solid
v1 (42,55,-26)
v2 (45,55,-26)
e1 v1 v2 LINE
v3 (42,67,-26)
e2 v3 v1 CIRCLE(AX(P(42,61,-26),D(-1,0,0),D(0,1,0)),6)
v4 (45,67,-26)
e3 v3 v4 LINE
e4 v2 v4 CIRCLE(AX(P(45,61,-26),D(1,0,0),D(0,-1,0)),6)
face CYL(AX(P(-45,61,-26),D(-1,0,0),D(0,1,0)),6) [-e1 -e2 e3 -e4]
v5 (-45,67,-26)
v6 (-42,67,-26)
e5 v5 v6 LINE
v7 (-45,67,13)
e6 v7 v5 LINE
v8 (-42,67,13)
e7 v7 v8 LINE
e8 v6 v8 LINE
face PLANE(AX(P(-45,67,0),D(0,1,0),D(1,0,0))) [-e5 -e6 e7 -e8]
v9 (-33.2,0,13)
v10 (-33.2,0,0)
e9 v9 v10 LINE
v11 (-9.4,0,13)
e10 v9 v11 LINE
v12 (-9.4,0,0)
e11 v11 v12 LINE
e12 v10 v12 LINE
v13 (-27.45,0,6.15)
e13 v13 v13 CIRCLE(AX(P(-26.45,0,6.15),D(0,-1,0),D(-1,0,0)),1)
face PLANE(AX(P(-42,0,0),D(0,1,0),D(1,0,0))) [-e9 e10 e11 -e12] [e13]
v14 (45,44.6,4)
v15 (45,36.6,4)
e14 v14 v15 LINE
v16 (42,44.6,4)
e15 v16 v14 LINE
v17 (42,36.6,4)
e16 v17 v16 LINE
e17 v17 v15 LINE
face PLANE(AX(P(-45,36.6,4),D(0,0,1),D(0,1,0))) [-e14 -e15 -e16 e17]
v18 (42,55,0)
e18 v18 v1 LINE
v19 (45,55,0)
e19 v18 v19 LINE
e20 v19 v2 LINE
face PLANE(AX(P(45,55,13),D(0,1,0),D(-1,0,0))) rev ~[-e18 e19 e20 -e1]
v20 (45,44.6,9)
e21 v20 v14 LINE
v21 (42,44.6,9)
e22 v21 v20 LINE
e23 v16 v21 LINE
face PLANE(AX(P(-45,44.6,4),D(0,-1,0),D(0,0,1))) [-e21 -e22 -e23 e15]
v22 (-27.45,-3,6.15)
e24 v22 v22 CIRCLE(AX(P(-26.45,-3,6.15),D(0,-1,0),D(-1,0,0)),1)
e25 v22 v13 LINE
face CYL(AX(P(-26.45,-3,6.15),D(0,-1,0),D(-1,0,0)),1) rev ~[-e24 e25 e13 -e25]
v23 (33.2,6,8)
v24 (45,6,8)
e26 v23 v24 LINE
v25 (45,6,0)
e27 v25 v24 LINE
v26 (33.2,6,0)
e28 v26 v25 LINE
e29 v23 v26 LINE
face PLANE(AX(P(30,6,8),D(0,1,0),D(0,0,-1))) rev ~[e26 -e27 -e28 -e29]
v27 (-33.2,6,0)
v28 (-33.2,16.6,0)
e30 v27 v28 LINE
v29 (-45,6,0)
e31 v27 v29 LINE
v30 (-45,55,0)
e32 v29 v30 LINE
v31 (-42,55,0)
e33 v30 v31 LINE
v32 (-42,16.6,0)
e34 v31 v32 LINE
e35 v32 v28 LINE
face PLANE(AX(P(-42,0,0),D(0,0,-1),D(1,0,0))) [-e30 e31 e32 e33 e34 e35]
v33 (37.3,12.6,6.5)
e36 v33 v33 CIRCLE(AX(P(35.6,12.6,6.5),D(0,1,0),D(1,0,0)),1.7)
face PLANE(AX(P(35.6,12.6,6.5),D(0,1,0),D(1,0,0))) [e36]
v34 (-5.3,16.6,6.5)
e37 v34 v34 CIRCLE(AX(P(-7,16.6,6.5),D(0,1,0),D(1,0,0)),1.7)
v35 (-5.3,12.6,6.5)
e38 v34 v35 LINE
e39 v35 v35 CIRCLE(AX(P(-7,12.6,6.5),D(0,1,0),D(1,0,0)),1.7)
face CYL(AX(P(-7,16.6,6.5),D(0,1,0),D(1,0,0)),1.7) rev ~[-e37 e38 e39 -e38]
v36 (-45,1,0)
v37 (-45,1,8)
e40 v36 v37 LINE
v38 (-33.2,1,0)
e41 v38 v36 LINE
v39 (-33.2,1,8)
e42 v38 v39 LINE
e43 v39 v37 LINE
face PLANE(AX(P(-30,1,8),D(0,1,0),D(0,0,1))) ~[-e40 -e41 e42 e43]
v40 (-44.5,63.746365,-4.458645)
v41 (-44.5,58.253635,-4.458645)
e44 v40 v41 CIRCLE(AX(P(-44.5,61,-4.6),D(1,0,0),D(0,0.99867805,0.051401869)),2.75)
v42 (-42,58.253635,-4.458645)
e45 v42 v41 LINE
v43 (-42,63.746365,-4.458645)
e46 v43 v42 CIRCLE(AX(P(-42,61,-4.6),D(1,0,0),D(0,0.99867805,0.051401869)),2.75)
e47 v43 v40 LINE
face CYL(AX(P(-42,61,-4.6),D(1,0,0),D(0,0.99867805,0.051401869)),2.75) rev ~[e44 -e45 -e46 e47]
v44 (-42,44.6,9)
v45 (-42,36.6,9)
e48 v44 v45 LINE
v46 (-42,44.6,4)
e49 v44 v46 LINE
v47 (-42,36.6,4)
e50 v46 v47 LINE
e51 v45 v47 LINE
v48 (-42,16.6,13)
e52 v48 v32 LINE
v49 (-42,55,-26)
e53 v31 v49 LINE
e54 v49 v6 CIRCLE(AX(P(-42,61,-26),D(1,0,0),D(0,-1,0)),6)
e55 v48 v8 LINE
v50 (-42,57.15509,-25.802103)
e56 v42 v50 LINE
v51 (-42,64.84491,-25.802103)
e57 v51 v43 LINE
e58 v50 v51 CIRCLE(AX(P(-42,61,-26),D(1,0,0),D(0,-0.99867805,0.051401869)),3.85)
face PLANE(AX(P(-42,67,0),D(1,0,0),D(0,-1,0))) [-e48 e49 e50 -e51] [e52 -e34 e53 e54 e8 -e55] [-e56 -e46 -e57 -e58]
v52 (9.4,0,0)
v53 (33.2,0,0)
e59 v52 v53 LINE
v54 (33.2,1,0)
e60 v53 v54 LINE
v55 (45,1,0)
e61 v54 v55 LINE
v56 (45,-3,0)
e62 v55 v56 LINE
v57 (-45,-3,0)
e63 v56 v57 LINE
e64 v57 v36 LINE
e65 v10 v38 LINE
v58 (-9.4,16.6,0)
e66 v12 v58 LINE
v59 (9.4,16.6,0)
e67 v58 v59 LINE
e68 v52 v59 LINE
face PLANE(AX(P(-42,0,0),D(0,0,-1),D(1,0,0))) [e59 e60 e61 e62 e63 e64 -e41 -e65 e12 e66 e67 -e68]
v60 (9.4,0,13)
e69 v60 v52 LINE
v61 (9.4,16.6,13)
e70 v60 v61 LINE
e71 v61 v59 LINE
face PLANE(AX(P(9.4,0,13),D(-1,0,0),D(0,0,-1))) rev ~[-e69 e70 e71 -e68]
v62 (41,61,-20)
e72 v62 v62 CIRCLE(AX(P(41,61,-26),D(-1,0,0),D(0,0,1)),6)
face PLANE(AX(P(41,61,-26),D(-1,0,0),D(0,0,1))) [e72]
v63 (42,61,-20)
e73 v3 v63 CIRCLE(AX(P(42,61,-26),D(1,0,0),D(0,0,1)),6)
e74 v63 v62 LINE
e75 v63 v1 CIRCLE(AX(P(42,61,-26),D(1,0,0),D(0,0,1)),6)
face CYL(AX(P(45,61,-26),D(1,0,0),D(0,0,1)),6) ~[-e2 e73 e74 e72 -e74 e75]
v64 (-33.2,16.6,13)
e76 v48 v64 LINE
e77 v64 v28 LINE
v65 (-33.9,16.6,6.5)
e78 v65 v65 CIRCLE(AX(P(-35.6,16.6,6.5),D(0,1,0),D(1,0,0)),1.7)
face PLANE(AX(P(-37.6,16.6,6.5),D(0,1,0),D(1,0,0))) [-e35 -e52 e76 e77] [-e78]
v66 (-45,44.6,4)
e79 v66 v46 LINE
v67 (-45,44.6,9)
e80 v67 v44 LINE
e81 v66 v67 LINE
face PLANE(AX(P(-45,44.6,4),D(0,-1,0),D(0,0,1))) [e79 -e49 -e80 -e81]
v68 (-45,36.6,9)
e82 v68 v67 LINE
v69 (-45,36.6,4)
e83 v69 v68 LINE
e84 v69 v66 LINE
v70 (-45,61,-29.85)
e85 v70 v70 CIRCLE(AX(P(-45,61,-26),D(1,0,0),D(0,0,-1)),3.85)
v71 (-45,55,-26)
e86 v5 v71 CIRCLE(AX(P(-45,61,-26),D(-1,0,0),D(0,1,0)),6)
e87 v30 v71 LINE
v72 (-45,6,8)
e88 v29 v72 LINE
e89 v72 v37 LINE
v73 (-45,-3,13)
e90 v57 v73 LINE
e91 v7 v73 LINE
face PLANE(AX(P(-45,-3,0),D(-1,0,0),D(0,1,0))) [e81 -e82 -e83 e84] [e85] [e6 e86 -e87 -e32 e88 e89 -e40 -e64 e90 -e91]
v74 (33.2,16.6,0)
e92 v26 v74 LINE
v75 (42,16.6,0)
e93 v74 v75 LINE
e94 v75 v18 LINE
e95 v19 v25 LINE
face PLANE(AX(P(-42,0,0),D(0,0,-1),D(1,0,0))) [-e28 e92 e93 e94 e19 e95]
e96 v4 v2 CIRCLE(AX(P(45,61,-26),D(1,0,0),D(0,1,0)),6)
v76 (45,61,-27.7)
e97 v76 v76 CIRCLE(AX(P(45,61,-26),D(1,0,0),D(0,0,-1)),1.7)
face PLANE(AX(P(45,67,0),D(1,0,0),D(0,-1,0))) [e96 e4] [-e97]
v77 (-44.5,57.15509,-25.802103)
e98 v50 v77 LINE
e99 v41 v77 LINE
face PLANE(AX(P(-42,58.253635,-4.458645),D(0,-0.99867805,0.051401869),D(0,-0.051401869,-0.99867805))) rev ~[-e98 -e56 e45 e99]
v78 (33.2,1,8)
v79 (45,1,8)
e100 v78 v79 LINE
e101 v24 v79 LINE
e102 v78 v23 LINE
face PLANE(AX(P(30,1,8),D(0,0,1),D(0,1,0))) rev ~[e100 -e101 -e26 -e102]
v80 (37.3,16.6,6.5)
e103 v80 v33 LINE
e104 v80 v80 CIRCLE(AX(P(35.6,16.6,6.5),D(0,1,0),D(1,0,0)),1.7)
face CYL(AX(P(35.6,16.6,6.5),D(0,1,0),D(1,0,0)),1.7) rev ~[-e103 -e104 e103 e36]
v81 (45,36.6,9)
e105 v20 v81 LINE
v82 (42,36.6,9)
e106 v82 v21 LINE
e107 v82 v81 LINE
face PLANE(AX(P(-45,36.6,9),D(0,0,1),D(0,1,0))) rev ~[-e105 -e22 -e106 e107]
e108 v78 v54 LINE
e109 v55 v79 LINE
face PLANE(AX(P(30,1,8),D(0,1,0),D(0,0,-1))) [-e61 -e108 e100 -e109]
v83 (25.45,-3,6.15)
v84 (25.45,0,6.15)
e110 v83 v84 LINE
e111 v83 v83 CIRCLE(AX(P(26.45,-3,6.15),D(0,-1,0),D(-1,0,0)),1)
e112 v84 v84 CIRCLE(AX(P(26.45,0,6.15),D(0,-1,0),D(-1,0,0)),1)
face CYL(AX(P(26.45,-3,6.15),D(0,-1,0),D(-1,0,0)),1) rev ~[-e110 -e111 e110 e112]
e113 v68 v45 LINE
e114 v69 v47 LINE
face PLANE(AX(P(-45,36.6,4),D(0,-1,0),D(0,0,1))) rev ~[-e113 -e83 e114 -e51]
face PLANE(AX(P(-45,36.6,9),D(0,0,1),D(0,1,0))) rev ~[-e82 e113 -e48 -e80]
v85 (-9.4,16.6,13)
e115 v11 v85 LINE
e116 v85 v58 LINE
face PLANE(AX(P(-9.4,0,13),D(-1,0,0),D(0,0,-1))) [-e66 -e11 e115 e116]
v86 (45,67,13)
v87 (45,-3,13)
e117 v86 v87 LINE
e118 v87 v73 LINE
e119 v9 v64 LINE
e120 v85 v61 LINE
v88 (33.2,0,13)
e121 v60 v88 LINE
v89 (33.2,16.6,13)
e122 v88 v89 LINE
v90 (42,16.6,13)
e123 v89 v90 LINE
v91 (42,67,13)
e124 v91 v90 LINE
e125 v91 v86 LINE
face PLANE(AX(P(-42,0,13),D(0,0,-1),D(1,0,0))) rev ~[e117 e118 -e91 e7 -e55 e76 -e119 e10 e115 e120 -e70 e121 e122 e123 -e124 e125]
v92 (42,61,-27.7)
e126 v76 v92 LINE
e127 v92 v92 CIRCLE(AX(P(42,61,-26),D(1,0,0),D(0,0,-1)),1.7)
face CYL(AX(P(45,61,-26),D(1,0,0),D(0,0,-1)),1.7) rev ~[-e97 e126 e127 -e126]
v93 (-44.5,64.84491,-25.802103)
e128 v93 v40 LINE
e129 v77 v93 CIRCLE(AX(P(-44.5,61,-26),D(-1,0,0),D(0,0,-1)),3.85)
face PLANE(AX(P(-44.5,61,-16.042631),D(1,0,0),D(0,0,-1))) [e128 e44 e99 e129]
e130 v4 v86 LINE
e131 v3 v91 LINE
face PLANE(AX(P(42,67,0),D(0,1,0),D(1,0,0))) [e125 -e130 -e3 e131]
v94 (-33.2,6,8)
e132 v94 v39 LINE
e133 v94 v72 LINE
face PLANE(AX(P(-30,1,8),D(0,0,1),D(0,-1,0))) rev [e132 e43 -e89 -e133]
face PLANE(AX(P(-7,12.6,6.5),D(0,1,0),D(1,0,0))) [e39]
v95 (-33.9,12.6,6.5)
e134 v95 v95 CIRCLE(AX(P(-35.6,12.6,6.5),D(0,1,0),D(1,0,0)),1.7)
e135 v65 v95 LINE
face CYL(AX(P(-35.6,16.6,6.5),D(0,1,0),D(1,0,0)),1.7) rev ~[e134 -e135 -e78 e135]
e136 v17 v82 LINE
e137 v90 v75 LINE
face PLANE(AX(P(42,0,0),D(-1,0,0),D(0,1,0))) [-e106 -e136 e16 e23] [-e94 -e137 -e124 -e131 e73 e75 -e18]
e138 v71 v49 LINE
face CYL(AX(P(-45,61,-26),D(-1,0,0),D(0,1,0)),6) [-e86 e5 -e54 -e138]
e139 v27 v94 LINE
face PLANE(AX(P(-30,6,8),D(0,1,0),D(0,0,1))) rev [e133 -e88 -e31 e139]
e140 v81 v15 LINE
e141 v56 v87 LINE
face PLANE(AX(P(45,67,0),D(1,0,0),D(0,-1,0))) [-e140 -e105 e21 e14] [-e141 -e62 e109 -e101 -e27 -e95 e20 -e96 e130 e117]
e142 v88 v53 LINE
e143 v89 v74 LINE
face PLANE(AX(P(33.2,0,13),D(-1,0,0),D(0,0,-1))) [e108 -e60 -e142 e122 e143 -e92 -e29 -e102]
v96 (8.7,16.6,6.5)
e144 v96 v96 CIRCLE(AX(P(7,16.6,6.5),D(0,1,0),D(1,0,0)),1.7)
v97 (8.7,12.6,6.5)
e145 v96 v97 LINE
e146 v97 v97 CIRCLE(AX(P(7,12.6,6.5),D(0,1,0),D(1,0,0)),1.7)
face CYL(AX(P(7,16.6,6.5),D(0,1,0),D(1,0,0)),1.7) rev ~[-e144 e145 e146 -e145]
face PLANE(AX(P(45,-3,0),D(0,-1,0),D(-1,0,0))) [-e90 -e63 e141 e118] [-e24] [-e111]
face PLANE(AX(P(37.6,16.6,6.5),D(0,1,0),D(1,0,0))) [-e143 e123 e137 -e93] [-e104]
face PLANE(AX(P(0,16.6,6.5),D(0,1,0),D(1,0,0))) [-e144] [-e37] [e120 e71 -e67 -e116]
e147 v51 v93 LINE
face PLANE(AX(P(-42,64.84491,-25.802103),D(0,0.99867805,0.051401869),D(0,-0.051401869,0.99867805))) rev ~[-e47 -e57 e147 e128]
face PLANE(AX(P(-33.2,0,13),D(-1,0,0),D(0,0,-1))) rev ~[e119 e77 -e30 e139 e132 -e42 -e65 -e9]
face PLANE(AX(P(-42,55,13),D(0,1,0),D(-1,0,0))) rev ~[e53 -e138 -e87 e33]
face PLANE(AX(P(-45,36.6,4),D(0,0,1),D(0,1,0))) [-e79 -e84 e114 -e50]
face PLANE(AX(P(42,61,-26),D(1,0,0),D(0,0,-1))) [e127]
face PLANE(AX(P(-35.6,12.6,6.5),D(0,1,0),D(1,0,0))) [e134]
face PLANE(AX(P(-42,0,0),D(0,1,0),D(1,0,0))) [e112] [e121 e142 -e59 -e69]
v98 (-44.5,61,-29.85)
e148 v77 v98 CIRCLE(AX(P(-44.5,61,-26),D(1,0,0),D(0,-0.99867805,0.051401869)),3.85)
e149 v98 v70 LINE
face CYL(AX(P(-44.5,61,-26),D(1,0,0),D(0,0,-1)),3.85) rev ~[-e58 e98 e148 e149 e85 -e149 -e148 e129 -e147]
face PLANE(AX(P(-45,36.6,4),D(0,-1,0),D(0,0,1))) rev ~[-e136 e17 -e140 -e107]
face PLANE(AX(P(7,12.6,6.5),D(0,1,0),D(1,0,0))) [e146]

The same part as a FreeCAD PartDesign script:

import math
import FreeCAD as App
import Part
import Sketcher
Q = App.Units.Quantity

doc = App.newDocument("Part")
body = doc.addObject("PartDesign::Body", "Body")

# Sketch on XY plane
sketch1 = doc.addObject("Sketcher::SketchObject", "Sketch")
body.addObject(sketch1)
sketch1.AttachmentSupport = (doc.XY_Plane, [""])
sketch1.MapMode = "FlatFace"
sketch1.addGeometry(Part.LineSegment(App.Vector(-42, 67, 0), App.Vector(-45, 67, 0)), False)
sketch1.addGeometry(Part.LineSegment(App.Vector(-45, 67, 0), App.Vector(-45, -3, 0)), False)
sketch1.addGeometry(Part.LineSegment(App.Vector(-45, -3, 0), App.Vector(45, -3, 0)), False)
sketch1.addGeometry(Part.LineSegment(App.Vector(45, -3, 0), App.Vector(45, 67, 0)), False)
sketch1.addGeometry(Part.LineSegment(App.Vector(45, 67, 0), App.Vector(42, 67, 0)), False)
sketch1.addGeometry(Part.LineSegment(App.Vector(42, 67, 0), App.Vector(42, 0, 0)), False)
sketch1.addGeometry(Part.LineSegment(App.Vector(42, 0, 0), App.Vector(-42, 0, 0)), False)
sketch1.addGeometry(Part.LineSegment(App.Vector(-42, 0, 0), App.Vector(-42, 67, 0)), False)
sketch1.addConstraint(Sketcher.Constraint("Coincident", 0, 2, 1, 1))
sketch1.addConstraint(Sketcher.Constraint("Coincident", 1, 2, 2, 1))
sketch1.addConstraint(Sketcher.Constraint("Coincident", 2, 2, 3, 1))
sketch1.addConstraint(Sketcher.Constraint("Coincident", 3, 2, 4, 1))
sketch1.addConstraint(Sketcher.Constraint("Coincident", 4, 2, 5, 1))
sketch1.addConstraint(Sketcher.Constraint("Coincident", 5, 2, 6, 1))
sketch1.addConstraint(Sketcher.Constraint("Coincident", 6, 2, 7, 1))
sketch1.addConstraint(Sketcher.Constraint("Coincident", 7, 2, 0, 1))
sketch1.addConstraint(Sketcher.Constraint("Horizontal", 0))
sketch1.addConstraint(Sketcher.Constraint("Vertical", 1))
sketch1.addConstraint(Sketcher.Constraint("Horizontal", 2))
sketch1.addConstraint(Sketcher.Constraint("Vertical", 3))
sketch1.addConstraint(Sketcher.Constraint("Horizontal", 4))
sketch1.addConstraint(Sketcher.Constraint("Vertical", 5))
sketch1.addConstraint(Sketcher.Constraint("Horizontal", 6))
sketch1.addConstraint(Sketcher.Constraint("Vertical", 7))
sketch1.addConstraint(Sketcher.Constraint("Symmetric", 5, 2, 6, 2, -1, 1))
sketch1.addConstraint(Sketcher.Constraint("Symmetric", 0, 2, 3, 2, -2))
sketch1.addConstraint(Sketcher.Constraint("DistanceX", 0, 2, 0, 1, Q("3 mm")))
sketch1.addConstraint(Sketcher.Constraint("DistanceX", 2, 1, 2, 2, Q("90 mm")))
sketch1.addConstraint(Sketcher.Constraint("DistanceY", 1, 2, 1, 1, Q("70 mm")))
sketch1.addConstraint(Sketcher.Constraint("DistanceY", 5, 2, 5, 1, Q("67 mm")))
pad1 = doc.addObject("PartDesign::Pad", "Pad")
body.addObject(pad1)
pad1.Profile = sketch1
pad1.Length = 13

# Sketch on XY plane
sketch2 = doc.addObject("Sketcher::SketchObject", "Sketch001")
body.addObject(sketch2)
sketch2.AttachmentSupport = (doc.XY_Plane, [""])
sketch2.MapMode = "FlatFace"
sketch2.AttachmentOffset = App.Placement(App.Vector(0, 0, 13), App.Rotation())
sketch2.addGeometry(Part.LineSegment(App.Vector(45, 67, 0), App.Vector(45, 55, 0)), False)
sketch2.addGeometry(Part.LineSegment(App.Vector(45, 55, 0), App.Vector(42, 55, 0)), False)
sketch2.addGeometry(Part.LineSegment(App.Vector(42, 55, 0), App.Vector(42, 67, 0)), False)
sketch2.addGeometry(Part.LineSegment(App.Vector(42, 67, 0), App.Vector(45, 67, 0)), False)
sketch2.addGeometry(Part.LineSegment(App.Vector(-42, 67, 0), App.Vector(-42, 55, 0)), False)
sketch2.addGeometry(Part.LineSegment(App.Vector(-42, 55, 0), App.Vector(-45, 55, 0)), False)
sketch2.addGeometry(Part.LineSegment(App.Vector(-45, 55, 0), App.Vector(-45, 67, 0)), False)
sketch2.addGeometry(Part.LineSegment(App.Vector(-45, 67, 0), App.Vector(-42, 67, 0)), False)
sketch2.addConstraint(Sketcher.Constraint("Coincident", 0, 2, 1, 1))
sketch2.addConstraint(Sketcher.Constraint("Coincident", 1, 2, 2, 1))
sketch2.addConstraint(Sketcher.Constraint("Coincident", 2, 2, 3, 1))
sketch2.addConstraint(Sketcher.Constraint("Coincident", 3, 2, 0, 1))
sketch2.addConstraint(Sketcher.Constraint("Coincident", 4, 2, 5, 1))
sketch2.addConstraint(Sketcher.Constraint("Coincident", 5, 2, 6, 1))
sketch2.addConstraint(Sketcher.Constraint("Coincident", 6, 2, 7, 1))
sketch2.addConstraint(Sketcher.Constraint("Coincident", 7, 2, 4, 1))
sketch2.addConstraint(Sketcher.Constraint("Vertical", 0))
sketch2.addConstraint(Sketcher.Constraint("Horizontal", 1))
sketch2.addConstraint(Sketcher.Constraint("Vertical", 2))
sketch2.addConstraint(Sketcher.Constraint("Horizontal", 3))
sketch2.addConstraint(Sketcher.Constraint("Vertical", 4))
sketch2.addConstraint(Sketcher.Constraint("Horizontal", 5))
sketch2.addConstraint(Sketcher.Constraint("Vertical", 6))
sketch2.addConstraint(Sketcher.Constraint("Horizontal", 7))
sketch2.addConstraint(Sketcher.Constraint("Symmetric", 1, 2, 4, 2, -2))
sketch2.addConstraint(Sketcher.Constraint("Symmetric", 3, 2, 6, 2, -2))
sketch2.addConstraint(Sketcher.Constraint("DistanceX", 1, 2, 1, 1, Q("3 mm")))
sketch2.addConstraint(Sketcher.Constraint("DistanceY", 0, 2, 0, 1, Q("12 mm")))
sketch2.addConstraint(Sketcher.Constraint("DistanceX", -1, 1, 0, 2, Q("45 mm")))
sketch2.addConstraint(Sketcher.Constraint("DistanceY", -1, 1, 0, 2, Q("55 mm")))
pad2 = doc.addObject("PartDesign::Pad", "Pad001")
body.addObject(pad2)
pad2.Profile = sketch2
pad2.Length = 45
pad2.Reversed = True

# Sketch on XZ plane
sketch3 = doc.addObject("Sketcher::SketchObject", "Sketch002")
body.addObject(sketch3)
sketch3.AttachmentSupport = (doc.XZ_Plane, [""])
sketch3.MapMode = "FlatFace"
sketch3.addGeometry(Part.LineSegment(App.Vector(-42, 0, 0), App.Vector(-42, 13, 0)), False)
sketch3.addGeometry(Part.LineSegment(App.Vector(-42, 13, 0), App.Vector(-33, 13, 0)), False)
sketch3.addGeometry(Part.LineSegment(App.Vector(-33, 13, 0), App.Vector(-33, 0, 0)), False)
sketch3.addGeometry(Part.LineSegment(App.Vector(-33, 0, 0), App.Vector(-42, 0, 0)), False)
sketch3.addGeometry(Part.LineSegment(App.Vector(33, 0, 0), App.Vector(33, 13, 0)), False)
sketch3.addGeometry(Part.LineSegment(App.Vector(33, 13, 0), App.Vector(42, 13, 0)), False)
sketch3.addGeometry(Part.LineSegment(App.Vector(42, 13, 0), App.Vector(42, 0, 0)), False)
sketch3.addGeometry(Part.LineSegment(App.Vector(42, 0, 0), App.Vector(33, 0, 0)), False)
sketch3.addGeometry(Part.LineSegment(App.Vector(-9, 0, 0), App.Vector(-9, 13, 0)), False)
sketch3.addGeometry(Part.LineSegment(App.Vector(-9, 13, 0), App.Vector(9, 13, 0)), False)
sketch3.addGeometry(Part.LineSegment(App.Vector(9, 13, 0), App.Vector(9, 0, 0)), False)
sketch3.addGeometry(Part.LineSegment(App.Vector(9, 0, 0), App.Vector(-9, 0, 0)), False)
sketch3.addConstraint(Sketcher.Constraint("Coincident", 0, 2, 1, 1))
sketch3.addConstraint(Sketcher.Constraint("Coincident", 1, 2, 2, 1))
sketch3.addConstraint(Sketcher.Constraint("Coincident", 2, 2, 3, 1))
sketch3.addConstraint(Sketcher.Constraint("Coincident", 3, 2, 0, 1))
sketch3.addConstraint(Sketcher.Constraint("Coincident", 4, 2, 5, 1))
sketch3.addConstraint(Sketcher.Constraint("Coincident", 5, 2, 6, 1))
sketch3.addConstraint(Sketcher.Constraint("Coincident", 6, 2, 7, 1))
sketch3.addConstraint(Sketcher.Constraint("Coincident", 7, 2, 4, 1))
sketch3.addConstraint(Sketcher.Constraint("Coincident", 8, 2, 9, 1))
sketch3.addConstraint(Sketcher.Constraint("Coincident", 9, 2, 10, 1))
sketch3.addConstraint(Sketcher.Constraint("Coincident", 10, 2, 11, 1))
sketch3.addConstraint(Sketcher.Constraint("Coincident", 11, 2, 8, 1))
sketch3.addConstraint(Sketcher.Constraint("Vertical", 0))
sketch3.addConstraint(Sketcher.Constraint("Horizontal", 1))
sketch3.addConstraint(Sketcher.Constraint("Vertical", 2))
sketch3.addConstraint(Sketcher.Constraint("Horizontal", 3))
sketch3.addConstraint(Sketcher.Constraint("Vertical", 4))
sketch3.addConstraint(Sketcher.Constraint("Horizontal", 5))
sketch3.addConstraint(Sketcher.Constraint("Vertical", 6))
sketch3.addConstraint(Sketcher.Constraint("Horizontal", 7))
sketch3.addConstraint(Sketcher.Constraint("Vertical", 8))
sketch3.addConstraint(Sketcher.Constraint("Horizontal", 9))
sketch3.addConstraint(Sketcher.Constraint("Vertical", 10))
sketch3.addConstraint(Sketcher.Constraint("Horizontal", 11))
sketch3.addConstraint(Sketcher.Constraint("Symmetric", 3, 2, 6, 2, -1, 1))
sketch3.addConstraint(Sketcher.Constraint("Symmetric", 10, 2, 11, 2, -1, 1))
sketch3.addConstraint(Sketcher.Constraint("Symmetric", 1, 2, 4, 2, -2))
sketch3.addConstraint(Sketcher.Constraint("PointOnObject", 2, 2, -1))
sketch3.addConstraint(Sketcher.Constraint("Horizontal", 5, 2, 8, 2))
sketch3.addConstraint(Sketcher.Constraint("DistanceY", 0, 1, 0, 2, Q("13 mm")))
sketch3.addConstraint(Sketcher.Constraint("DistanceX", 1, 1, 1, 2, Q("8.8 mm")))
sketch3.addConstraint(Sketcher.Constraint("DistanceX", 9, 1, 9, 2, Q("18.8 mm")))
sketch3.addConstraint(Sketcher.Constraint("DistanceX", 0, 2, -1, 1, Q("42 mm")))
pad3 = doc.addObject("PartDesign::Pad", "Pad002")
body.addObject(pad3)
pad3.Profile = sketch3
pad3.Length = 16.6
pad3.Reversed = True

# Sketch on XZ plane
sketch4 = doc.addObject("Sketcher::SketchObject", "Sketch003")
body.addObject(sketch4)
sketch4.AttachmentSupport = (doc.XZ_Plane, [""])
sketch4.MapMode = "FlatFace"
sketch4.AttachmentOffset = App.Placement(App.Vector(0, 0, -16.6), App.Rotation())
sketch4.addGeometry(Part.Circle(App.Vector(-35.6, 6.5, 0), App.Vector(0, 0, 1), 1.7), False)
sketch4.addGeometry(Part.Circle(App.Vector(-7, 6.5, 0), App.Vector(0, 0, 1), 1.7), False)
sketch4.addGeometry(Part.Circle(App.Vector(7, 6.5, 0), App.Vector(0, 0, 1), 1.7), False)
sketch4.addGeometry(Part.Circle(App.Vector(35.6, 6.5, 0), App.Vector(0, 0, 1), 1.7), False)
sketch4.addConstraint(Sketcher.Constraint("Equal", 0, 1))
sketch4.addConstraint(Sketcher.Constraint("Equal", 1, 2))
sketch4.addConstraint(Sketcher.Constraint("Equal", 2, 3))
sketch4.addConstraint(Sketcher.Constraint("Symmetric", 1, 3, 2, 3, -2))
sketch4.addConstraint(Sketcher.Constraint("Symmetric", 0, 3, 3, 3, -2))
sketch4.addConstraint(Sketcher.Constraint("Horizontal", 0, 3, 1, 3))
sketch4.addConstraint(Sketcher.Constraint("Diameter", 0, Q("3.4 mm")))
sketch4.addConstraint(Sketcher.Constraint("DistanceX", 1, 3, -1, 1, Q("7 mm")))
sketch4.addConstraint(Sketcher.Constraint("DistanceX", 0, 3, -1, 1, Q("35.6 mm")))
sketch4.addConstraint(Sketcher.Constraint("DistanceY", -1, 1, 0, 3, Q("6.5 mm")))
pocket1 = doc.addObject("PartDesign::Pocket", "Pocket")
body.addObject(pocket1)
pocket1.Profile = sketch4
pocket1.Length = 4
pocket1.Reversed = True

# Sketch on YZ plane
sketch5 = doc.addObject("Sketcher::SketchObject", "Sketch004")
body.addObject(sketch5)
sketch5.AttachmentSupport = (doc.YZ_Plane, [""])
sketch5.MapMode = "FlatFace"
sketch5.AttachmentOffset = App.Placement(App.Vector(0, 0, 42), App.Rotation())
sketch5.addGeometry(Part.Circle(App.Vector(61, -26, 0), App.Vector(0, 0, 1), 1.5), False)
sketch5.addConstraint(Sketcher.Constraint("Diameter", 0, Q("3 mm")))
sketch5.addConstraint(Sketcher.Constraint("DistanceX", -1, 1, 0, 3, Q("61 mm")))
sketch5.addConstraint(Sketcher.Constraint("DistanceY", 0, 3, -1, 1, Q("26 mm")))
pocket2 = doc.addObject("PartDesign::Pocket", "Pocket001")
body.addObject(pocket2)
pocket2.Profile = sketch5
pocket2.Type = "ThroughAll"
pocket2.Reversed = True

# Sketch on YZ plane
sketch6 = doc.addObject("Sketcher::SketchObject", "Sketch005")
body.addObject(sketch6)
sketch6.AttachmentSupport = (doc.YZ_Plane, [""])
sketch6.MapMode = "FlatFace"
sketch6.AttachmentOffset = App.Placement(App.Vector(0, 0, -42), App.Rotation())
sketch6.addGeometry(Part.LineSegment(App.Vector(63.7, -4.5, 0), App.Vector(64.8, -25.8, 0)), False)
sketch6.addGeometry(Part.ArcOfCircle(Part.Circle(App.Vector(61, -26, 0), App.Vector(0, 0, 1), 3.9), math.radians(177), math.radians(363)), False)
sketch6.addGeometry(Part.LineSegment(App.Vector(57.2, -25.8, 0), App.Vector(58.3, -4.5, 0)), False)
sketch6.addGeometry(Part.ArcOfCircle(Part.Circle(App.Vector(61, -4.6, 0), App.Vector(0, 0, 1), 2.8), math.radians(3), math.radians(177)), False)
sketch6.addConstraint(Sketcher.Constraint("Tangent", 0, 2, 1, 2))
sketch6.addConstraint(Sketcher.Constraint("Tangent", 1, 1, 2, 1))
sketch6.addConstraint(Sketcher.Constraint("Tangent", 2, 2, 3, 2))
sketch6.addConstraint(Sketcher.Constraint("Tangent", 3, 1, 0, 1))
sketch6.addConstraint(Sketcher.Constraint("Horizontal", 0, 2, 1, 1))
sketch6.addConstraint(Sketcher.Constraint("Radius", 1, Q("3.85 mm")))
sketch6.addConstraint(Sketcher.Constraint("Radius", 3, Q("2.75 mm")))
sketch6.addConstraint(Sketcher.Constraint("DistanceX", -1, 1, 1, 3, Q("61 mm")))
sketch6.addConstraint(Sketcher.Constraint("DistanceY", 1, 3, -1, 1, Q("26 mm")))
sketch6.addConstraint(Sketcher.Constraint("DistanceY", 3, 3, -1, 1, Q("4.6 mm")))
pocket3 = doc.addObject("PartDesign::Pocket", "Pocket002")
body.addObject(pocket3)
pocket3.Profile = sketch6
pocket3.Length = 2.5

# Sketch on YZ plane
sketch7 = doc.addObject("Sketcher::SketchObject", "Sketch006")
body.addObject(sketch7)
sketch7.AttachmentSupport = (doc.YZ_Plane, [""])
sketch7.MapMode = "FlatFace"
sketch7.AttachmentOffset = App.Placement(App.Vector(0, 0, -45), App.Rotation())
sketch7.addGeometry(Part.LineSegment(App.Vector(55, -40, 0), App.Vector(55, -26, 0)), False)
sketch7.addGeometry(Part.ArcOfCircle(Part.Circle(App.Vector(61, -26, 0), App.Vector(0, 0, 1), 6), math.radians(180), math.radians(360)), False)
sketch7.addGeometry(Part.LineSegment(App.Vector(67, -26, 0), App.Vector(67, -40, 0)), False)
sketch7.addGeometry(Part.LineSegment(App.Vector(67, -40, 0), App.Vector(55, -40, 0)), False)
sketch7.addConstraint(Sketcher.Constraint("Tangent", 0, 2, 1, 1))
sketch7.addConstraint(Sketcher.Constraint("Tangent", 1, 2, 2, 1))
sketch7.addConstraint(Sketcher.Constraint("Coincident", 2, 2, 3, 1))
sketch7.addConstraint(Sketcher.Constraint("Coincident", 3, 2, 0, 1))
sketch7.addConstraint(Sketcher.Constraint("Vertical", 0))
sketch7.addConstraint(Sketcher.Constraint("Vertical", 2))
sketch7.addConstraint(Sketcher.Constraint("Horizontal", 3))
sketch7.addConstraint(Sketcher.Constraint("Radius", 1, Q("6 mm")))
sketch7.addConstraint(Sketcher.Constraint("DistanceX", -1, 1, 1, 3, Q("61 mm")))
sketch7.addConstraint(Sketcher.Constraint("DistanceY", 1, 3, -1, 1, Q("26 mm")))
sketch7.addConstraint(Sketcher.Constraint("DistanceY", 0, 1, 0, 2, Q("14.113251 mm")))
pocket4 = doc.addObject("PartDesign::Pocket", "Pocket003")
body.addObject(pocket4)
pocket4.Profile = sketch7
pocket4.Type = "ThroughAll"
pocket4.Reversed = True

# Sketch on YZ plane
sketch8 = doc.addObject("Sketcher::SketchObject", "Sketch007")
body.addObject(sketch8)
sketch8.AttachmentSupport = (doc.YZ_Plane, [""])
sketch8.MapMode = "FlatFace"
sketch8.AttachmentOffset = App.Placement(App.Vector(0, 0, -44.5), App.Rotation())
sketch8.addGeometry(Part.Circle(App.Vector(61, -26, 0), App.Vector(0, 0, 1), 3.9), False)
sketch8.addConstraint(Sketcher.Constraint("Diameter", 0, Q("7.7 mm")))
sketch8.addConstraint(Sketcher.Constraint("DistanceX", -1, 1, 0, 3, Q("61 mm")))
sketch8.addConstraint(Sketcher.Constraint("DistanceY", 0, 3, -1, 1, Q("26 mm")))
pocket5 = doc.addObject("PartDesign::Pocket", "Pocket004")
body.addObject(pocket5)
pocket5.Profile = sketch8
pocket5.Type = "UpToFirst"

# Sketch on YZ plane
sketch9 = doc.addObject("Sketcher::SketchObject", "Sketch008")
body.addObject(sketch9)
sketch9.AttachmentSupport = (doc.YZ_Plane, [""])
sketch9.MapMode = "FlatFace"
sketch9.AttachmentOffset = App.Placement(App.Vector(0, 0, 30), App.Rotation())
sketch9.addGeometry(Part.LineSegment(App.Vector(6, 8, 0), App.Vector(1, 8, 0)), False)
sketch9.addGeometry(Part.LineSegment(App.Vector(1, 8, 0), App.Vector(1, 0, 0)), False)
sketch9.addGeometry(Part.LineSegment(App.Vector(1, 0, 0), App.Vector(6, 0, 0)), False)
sketch9.addGeometry(Part.LineSegment(App.Vector(6, 0, 0), App.Vector(6, 8, 0)), False)
sketch9.addConstraint(Sketcher.Constraint("Coincident", 0, 2, 1, 1))
sketch9.addConstraint(Sketcher.Constraint("Coincident", 1, 2, 2, 1))
sketch9.addConstraint(Sketcher.Constraint("Coincident", 2, 2, 3, 1))
sketch9.addConstraint(Sketcher.Constraint("Coincident", 3, 2, 0, 1))
sketch9.addConstraint(Sketcher.Constraint("Horizontal", 0))
sketch9.addConstraint(Sketcher.Constraint("Vertical", 1))
sketch9.addConstraint(Sketcher.Constraint("Horizontal", 2))
sketch9.addConstraint(Sketcher.Constraint("Vertical", 3))
sketch9.addConstraint(Sketcher.Constraint("PointOnObject", 1, 2, -1))
sketch9.addConstraint(Sketcher.Constraint("DistanceX", 0, 2, 0, 1, Q("5 mm")))
sketch9.addConstraint(Sketcher.Constraint("DistanceY", 1, 2, 1, 1, Q("8 mm")))
sketch9.addConstraint(Sketcher.Constraint("DistanceX", -1, 1, 0, 2, Q("1 mm")))
pocket6 = doc.addObject("PartDesign::Pocket", "Pocket005")
body.addObject(pocket6)
pocket6.Profile = sketch9
pocket6.Length = 16
pocket6.Reversed = True
doc.recompute()

mirrored = doc.addObject("PartDesign::Mirrored", "Mirrored")
body.addObject(mirrored)
mirrored.Originals = [pocket6]
mirrored.MirrorPlane = (doc.YZ_Plane, [""])
body.Tip = mirrored

# Sketch on YZ plane
sketch10 = doc.addObject("Sketcher::SketchObject", "Sketch009")
body.addObject(sketch10)
sketch10.AttachmentSupport = (doc.YZ_Plane, [""])
sketch10.MapMode = "FlatFace"
sketch10.AttachmentOffset = App.Placement(App.Vector(0, 0, -45), App.Rotation())
sketch10.addGeometry(Part.LineSegment(App.Vector(45, 4, 0), App.Vector(37, 4, 0)), False)
sketch10.addGeometry(Part.LineSegment(App.Vector(37, 4, 0), App.Vector(37, 9, 0)), False)
sketch10.addGeometry(Part.LineSegment(App.Vector(37, 9, 0), App.Vector(45, 9, 0)), False)
sketch10.addGeometry(Part.LineSegment(App.Vector(45, 9, 0), App.Vector(45, 4, 0)), False)
sketch10.addConstraint(Sketcher.Constraint("Coincident", 0, 2, 1, 1))
sketch10.addConstraint(Sketcher.Constraint("Coincident", 1, 2, 2, 1))
sketch10.addConstraint(Sketcher.Constraint("Coincident", 2, 2, 3, 1))
sketch10.addConstraint(Sketcher.Constraint("Coincident", 3, 2, 0, 1))
sketch10.addConstraint(Sketcher.Constraint("Horizontal", 0))
sketch10.addConstraint(Sketcher.Constraint("Vertical", 1))
sketch10.addConstraint(Sketcher.Constraint("Horizontal", 2))
sketch10.addConstraint(Sketcher.Constraint("Vertical", 3))
sketch10.addConstraint(Sketcher.Constraint("DistanceX", 0, 2, 0, 1, Q("8 mm")))
sketch10.addConstraint(Sketcher.Constraint("DistanceY", 1, 1, 1, 2, Q("5 mm")))
sketch10.addConstraint(Sketcher.Constraint("DistanceY", -1, 1, 0, 2, Q("4 mm")))
sketch10.addConstraint(Sketcher.Constraint("DistanceX", -1, 1, 0, 2, Q("36.6 mm")))
pocket7 = doc.addObject("PartDesign::Pocket", "Pocket006")
body.addObject(pocket7)
pocket7.Profile = sketch10
pocket7.Type = "ThroughAll"
pocket7.Reversed = True

# Sketch on XZ plane
sketch11 = doc.addObject("Sketcher::SketchObject", "Sketch010")
body.addObject(sketch11)
sketch11.AttachmentSupport = (doc.XZ_Plane, [""])
sketch11.MapMode = "FlatFace"
sketch11.AttachmentOffset = App.Placement(App.Vector(0, 0, 3), App.Rotation())
sketch11.addGeometry(Part.Circle(App.Vector(-26.4, 6.2, 0), App.Vector(0, 0, 1), 1), False)
sketch11.addGeometry(Part.Circle(App.Vector(26.4, 6.2, 0), App.Vector(0, 0, 1), 1), False)
sketch11.addConstraint(Sketcher.Constraint("Equal", 0, 1))
sketch11.addConstraint(Sketcher.Constraint("Symmetric", 0, 3, 1, 3, -2))
sketch11.addConstraint(Sketcher.Constraint("Diameter", 0, Q("2 mm")))
sketch11.addConstraint(Sketcher.Constraint("DistanceX", 0, 3, 1, 3, Q("52.9 mm")))
sketch11.addConstraint(Sketcher.Constraint("DistanceY", -1, 1, 0, 3, Q("6.15 mm")))
pocket8 = doc.addObject("PartDesign::Pocket", "Pocket007")
body.addObject(pocket8)
pocket8.Profile = sketch11
pocket8.Type = "ThroughAll"

# Sketch on YZ plane
sketch12 = doc.addObject("Sketcher::SketchObject", "Sketch011")
body.addObject(sketch12)
sketch12.AttachmentSupport = (doc.YZ_Plane, [""])
sketch12.MapMode = "FlatFace"
sketch12.AttachmentOffset = App.Placement(App.Vector(0, 0, 45), App.Rotation())
sketch12.addGeometry(Part.Circle(App.Vector(61, -26, 0), App.Vector(0, 0, 1), 6), False)
sketch12.addConstraint(Sketcher.Constraint("Diameter", 0, Q("12 mm")))
sketch12.addConstraint(Sketcher.Constraint("DistanceX", -1, 1, 0, 3, Q("61 mm")))
sketch12.addConstraint(Sketcher.Constraint("DistanceY", 0, 3, -1, 1, Q("26 mm")))
pad4 = doc.addObject("PartDesign::Pad", "Pad003")
body.addObject(pad4)
pad4.Profile = sketch12
pad4.Length = 4
pad4.Reversed = True

# Sketch on YZ plane
sketch13 = doc.addObject("Sketcher::SketchObject", "Sketch012")
body.addObject(sketch13)
sketch13.AttachmentSupport = (doc.YZ_Plane, [""])
sketch13.MapMode = "FlatFace"
sketch13.AttachmentOffset = App.Placement(App.Vector(0, 0, 45), App.Rotation())
sketch13.addGeometry(Part.Circle(App.Vector(61, -26, 0), App.Vector(0, 0, 1), 1.7), False)
sketch13.addConstraint(Sketcher.Constraint("Diameter", 0, Q("3.4 mm")))
sketch13.addConstraint(Sketcher.Constraint("DistanceX", -1, 1, 0, 3, Q("61 mm")))
sketch13.addConstraint(Sketcher.Constraint("DistanceY", 0, 3, -1, 1, Q("26 mm")))
pocket9 = doc.addObject("PartDesign::Pocket", "Pocket008")
body.addObject(pocket9)
pocket9.Profile = sketch13
pocket9.Length = 3

doc.recompute()
